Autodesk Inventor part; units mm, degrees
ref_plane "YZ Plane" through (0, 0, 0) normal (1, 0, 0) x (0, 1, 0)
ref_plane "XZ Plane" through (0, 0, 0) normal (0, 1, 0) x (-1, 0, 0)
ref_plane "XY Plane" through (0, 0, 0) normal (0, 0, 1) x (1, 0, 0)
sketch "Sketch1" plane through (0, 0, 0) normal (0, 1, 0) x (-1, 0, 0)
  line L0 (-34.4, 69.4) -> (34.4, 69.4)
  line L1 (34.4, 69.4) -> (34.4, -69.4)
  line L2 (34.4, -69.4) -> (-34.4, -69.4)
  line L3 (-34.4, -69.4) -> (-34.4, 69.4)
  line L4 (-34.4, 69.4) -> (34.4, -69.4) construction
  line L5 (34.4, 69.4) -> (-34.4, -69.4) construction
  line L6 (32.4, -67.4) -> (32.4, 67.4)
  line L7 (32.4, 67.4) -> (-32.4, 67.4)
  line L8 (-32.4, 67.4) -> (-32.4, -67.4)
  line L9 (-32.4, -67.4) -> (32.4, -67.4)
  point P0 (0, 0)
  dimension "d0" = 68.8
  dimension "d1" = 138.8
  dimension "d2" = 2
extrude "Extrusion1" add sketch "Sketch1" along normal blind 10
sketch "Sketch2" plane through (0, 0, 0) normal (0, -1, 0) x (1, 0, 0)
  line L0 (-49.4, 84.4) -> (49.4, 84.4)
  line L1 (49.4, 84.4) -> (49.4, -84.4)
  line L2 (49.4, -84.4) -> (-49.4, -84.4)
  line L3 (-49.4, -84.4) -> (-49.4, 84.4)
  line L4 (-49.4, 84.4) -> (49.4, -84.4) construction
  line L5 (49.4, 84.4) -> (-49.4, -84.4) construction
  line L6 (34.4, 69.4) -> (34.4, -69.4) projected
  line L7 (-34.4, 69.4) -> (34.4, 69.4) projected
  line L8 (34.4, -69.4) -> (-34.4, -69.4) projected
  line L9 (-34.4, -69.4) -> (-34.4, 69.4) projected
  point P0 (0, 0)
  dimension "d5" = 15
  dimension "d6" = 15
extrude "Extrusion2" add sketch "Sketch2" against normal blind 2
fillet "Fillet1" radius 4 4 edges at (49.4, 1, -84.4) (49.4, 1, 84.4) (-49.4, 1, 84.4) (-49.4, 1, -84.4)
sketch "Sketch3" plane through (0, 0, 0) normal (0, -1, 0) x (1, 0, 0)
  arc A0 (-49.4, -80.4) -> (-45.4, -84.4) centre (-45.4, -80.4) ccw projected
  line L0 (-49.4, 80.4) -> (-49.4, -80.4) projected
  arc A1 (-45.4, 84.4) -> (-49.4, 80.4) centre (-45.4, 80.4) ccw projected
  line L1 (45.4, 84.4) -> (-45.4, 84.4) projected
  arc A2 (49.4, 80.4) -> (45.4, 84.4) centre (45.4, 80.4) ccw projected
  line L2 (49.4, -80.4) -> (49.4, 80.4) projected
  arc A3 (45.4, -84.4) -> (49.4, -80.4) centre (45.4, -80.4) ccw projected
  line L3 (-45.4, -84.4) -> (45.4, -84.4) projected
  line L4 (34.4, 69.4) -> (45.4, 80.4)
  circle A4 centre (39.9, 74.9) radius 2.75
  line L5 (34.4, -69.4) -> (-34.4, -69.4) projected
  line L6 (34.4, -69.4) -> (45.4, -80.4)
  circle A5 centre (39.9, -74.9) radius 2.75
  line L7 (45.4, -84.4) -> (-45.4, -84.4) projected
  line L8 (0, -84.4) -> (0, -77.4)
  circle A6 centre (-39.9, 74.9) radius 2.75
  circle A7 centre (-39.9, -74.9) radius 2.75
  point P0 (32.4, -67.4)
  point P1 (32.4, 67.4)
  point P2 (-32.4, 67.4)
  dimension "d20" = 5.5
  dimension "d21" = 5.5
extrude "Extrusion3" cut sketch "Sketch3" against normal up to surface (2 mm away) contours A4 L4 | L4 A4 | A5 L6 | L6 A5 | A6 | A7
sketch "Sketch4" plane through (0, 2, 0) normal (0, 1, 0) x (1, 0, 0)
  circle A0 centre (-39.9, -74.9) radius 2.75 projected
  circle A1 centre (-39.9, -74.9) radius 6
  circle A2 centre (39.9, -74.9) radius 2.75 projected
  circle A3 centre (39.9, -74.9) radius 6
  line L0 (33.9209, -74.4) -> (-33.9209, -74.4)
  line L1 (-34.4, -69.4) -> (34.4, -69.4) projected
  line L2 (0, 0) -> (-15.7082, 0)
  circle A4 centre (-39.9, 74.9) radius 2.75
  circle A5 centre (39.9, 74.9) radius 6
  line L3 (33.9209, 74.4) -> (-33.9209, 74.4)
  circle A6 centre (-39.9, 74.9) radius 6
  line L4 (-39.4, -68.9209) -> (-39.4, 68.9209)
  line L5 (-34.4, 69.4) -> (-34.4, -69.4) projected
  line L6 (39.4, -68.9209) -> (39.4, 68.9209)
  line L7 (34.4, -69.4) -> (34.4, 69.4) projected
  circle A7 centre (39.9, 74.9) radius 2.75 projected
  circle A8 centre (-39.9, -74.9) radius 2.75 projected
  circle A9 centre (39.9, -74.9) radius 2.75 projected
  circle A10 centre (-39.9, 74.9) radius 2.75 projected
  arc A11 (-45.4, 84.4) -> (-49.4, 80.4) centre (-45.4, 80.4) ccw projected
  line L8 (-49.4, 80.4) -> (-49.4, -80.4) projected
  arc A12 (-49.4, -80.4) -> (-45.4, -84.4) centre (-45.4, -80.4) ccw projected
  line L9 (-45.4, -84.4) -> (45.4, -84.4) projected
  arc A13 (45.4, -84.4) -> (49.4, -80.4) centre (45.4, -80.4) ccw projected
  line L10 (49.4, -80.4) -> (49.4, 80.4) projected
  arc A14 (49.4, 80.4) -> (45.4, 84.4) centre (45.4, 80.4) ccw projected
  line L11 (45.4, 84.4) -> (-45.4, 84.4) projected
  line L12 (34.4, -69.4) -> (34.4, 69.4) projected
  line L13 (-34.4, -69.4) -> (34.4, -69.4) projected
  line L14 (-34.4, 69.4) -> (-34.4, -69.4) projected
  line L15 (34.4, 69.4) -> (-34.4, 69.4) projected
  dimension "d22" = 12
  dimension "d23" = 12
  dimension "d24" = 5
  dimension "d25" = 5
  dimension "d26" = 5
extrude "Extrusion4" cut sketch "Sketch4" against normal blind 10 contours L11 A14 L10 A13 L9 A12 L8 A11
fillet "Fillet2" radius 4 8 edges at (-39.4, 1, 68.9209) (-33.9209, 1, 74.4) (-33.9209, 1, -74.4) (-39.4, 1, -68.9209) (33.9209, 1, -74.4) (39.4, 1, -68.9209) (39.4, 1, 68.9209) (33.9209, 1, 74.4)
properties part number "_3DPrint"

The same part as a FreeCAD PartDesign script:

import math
import FreeCAD as App
import Part
import Sketcher
Q = App.Units.Quantity


def edges_at(feature, points):
    """Names of the edges that pass closest to the given points."""
    edges = feature.Shape.Edges
    near = lambda p: min(range(len(edges)), key=lambda i: edges[i].distToShape(Part.Vertex(*p))[0])
    return sorted({f"Edge{near(p) + 1}" for p in points})


def add_polygon(sketch, points):
    """Adds a closed chain of lines whose ends are joined by coincident constraints."""
    first, n = sketch.GeometryCount, len(points)
    for a, b in zip(points, points[1:] + points[:1]):
        sketch.addGeometry(Part.LineSegment(App.Vector(*a, 0), App.Vector(*b, 0)), False)
    for i in range(n):
        sketch.addConstraint(Sketcher.Constraint("Coincident", first + i, 2, first + (i + 1) % n, 1))

doc = App.newDocument("Part")
body = doc.addObject("PartDesign::Body", "Body")

# Sketch on XZ plane
sketch1 = body.newObject("Sketcher::SketchObject", "Sketch")
sketch1.AttachmentSupport = (doc.getObject("XZ_Plane"), [""])
sketch1.MapMode = "FlatFace"
add_polygon(sketch1, [(-34, 69), (34, 69), (34, -69), (-34, -69)])  # lines 0-3
add_polygon(sketch1, [(-32, 67), (-32, -67), (32, -67), (32, 67)])  # lines 4-7
sketch1.addConstraint([
    Sketcher.Constraint("Horizontal", 0),
    Sketcher.Constraint("Vertical", 1),
    Sketcher.Constraint("Horizontal", 2),
    Sketcher.Constraint("Vertical", 3),
    Sketcher.Constraint("Vertical", 4),
    Sketcher.Constraint("Horizontal", 5),
    Sketcher.Constraint("Vertical", 6),
    Sketcher.Constraint("Horizontal", 7),
    Sketcher.Constraint("Symmetric", 0, 2, 2, 2, -1, 1),
    Sketcher.Constraint("Symmetric", 4, 2, 6, 2, -1, 1),
    Sketcher.Constraint("DistanceX", 0, 1, 0, 2, Q("68.8 mm")),
    Sketcher.Constraint("DistanceY", 1, 2, 1, 1, Q("138.8 mm")),
    Sketcher.Constraint("DistanceX", 2, 2, 4, 2, Q("2 mm")),
    Sketcher.Constraint("DistanceY", 2, 2, 4, 2, Q("2 mm")),
])
pad1 = body.newObject("PartDesign::Pad", "Pad")
pad1.Profile = sketch1
pad1.Length = 10
pad1.Reversed = True

# Sketch on XZ plane
sketch2 = body.newObject("Sketcher::SketchObject", "Sketch001")
sketch2.AttachmentSupport = (doc.getObject("XZ_Plane"), [""])
sketch2.MapMode = "FlatFace"
add_polygon(sketch2, [(49, 84), (-49, 84), (-49, -84), (49, -84)])  # lines 0-3
add_polygon(sketch2, [(-34, 69), (34, 69), (34, -69), (-34, -69)])  # lines 4-7
sketch2.addConstraint([
    Sketcher.Constraint("Horizontal", 0),
    Sketcher.Constraint("Vertical", 1),
    Sketcher.Constraint("Horizontal", 2),
    Sketcher.Constraint("Vertical", 3),
    Sketcher.Constraint("Horizontal", 4),
    Sketcher.Constraint("Vertical", 5),
    Sketcher.Constraint("Horizontal", 6),
    Sketcher.Constraint("Vertical", 7),
    Sketcher.Constraint("Symmetric", 0, 2, 2, 2, -1, 1),
    Sketcher.Constraint("Symmetric", 4, 2, 6, 2, -1, 1),
    Sketcher.Constraint("DistanceX", 4, 2, 3, 2, Q("15 mm")),
    Sketcher.Constraint("DistanceY", 4, 2, 3, 2, Q("15 mm")),
    Sketcher.Constraint("DistanceX", 0, 2, 0, 1, Q("98.8 mm")),
    Sketcher.Constraint("DistanceY", 1, 2, 1, 1, Q("168.8 mm")),
])
pad2 = body.newObject("PartDesign::Pad", "Pad001")
pad2.Profile = sketch2
pad2.Length = 2
pad2.Reversed = True
doc.recompute()

fillet = body.newObject("PartDesign::Fillet", "Fillet")
fillet.Base = (pad2, edges_at(pad2, [
    (49.4, 1, -84.4),
    (49.4, 1, 84.4),
    (-49.4, 1, 84.4),
    (-49.4, 1, -84.4),
]))
fillet.Radius = 4

# Sketch on XZ plane
sketch3 = body.newObject("Sketcher::SketchObject", "Sketch002")
sketch3.AttachmentSupport = (doc.getObject("XZ_Plane"), [""])
sketch3.MapMode = "FlatFace"
sketch3.addGeometry([
    Part.Circle(App.Vector(39.9, 74.9, 0), App.Vector(0, 0, 1), 2.8),
    Part.Circle(App.Vector(39.9, -74.9, 0), App.Vector(0, 0, 1), 2.8),
    Part.Circle(App.Vector(-39.9, 74.9, 0), App.Vector(0, 0, 1), 2.8),
    Part.Circle(App.Vector(-39.9, -74.9, 0), App.Vector(0, 0, 1), 2.8),
], False)
sketch3.addConstraint([
    Sketcher.Constraint("Equal", 0, 1),
    Sketcher.Constraint("Equal", 1, 2),
    Sketcher.Constraint("Equal", 2, 3),
    Sketcher.Constraint("Symmetric", 1, 3, 2, 3, -1, 1),
    Sketcher.Constraint("Symmetric", 0, 3, 3, 3, -1, 1),
    Sketcher.Constraint("Symmetric", 0, 3, 2, 3, -2),
    Sketcher.Constraint("Diameter", 0, Q("5.5 mm")),
    Sketcher.Constraint("DistanceX", -1, 1, 0, 3, Q("39.9 mm")),
    Sketcher.Constraint("DistanceY", -1, 1, 0, 3, Q("74.9 mm")),
])
pocket1 = body.newObject("PartDesign::Pocket", "Pocket")
pocket1.Profile = sketch3
pocket1.Length = 2

# Sketch on XZ plane
sketch4 = body.newObject("Sketcher::SketchObject", "Sketch003")
sketch4.AttachmentSupport = (doc.getObject("XZ_Plane"), [""])
sketch4.MapMode = "FlatFace"
sketch4.AttachmentOffset = App.Placement(App.Vector(0, 0, -2), App.Rotation())
sketch4.addGeometry([
    Part.LineSegment(App.Vector(45.4, -84.4, 0), App.Vector(-45.4, -84.4, 0)),  # 0
    Part.ArcOfCircle(Part.Circle(App.Vector(-45.4, -80.4, 0), App.Vector(0, 0, 1), 4), math.radians(180), math.radians(270)),  # 1
    Part.LineSegment(App.Vector(-49.4, -80.4, 0), App.Vector(-49.4, 80.4, 0)),  # 2
    Part.ArcOfCircle(Part.Circle(App.Vector(-45.4, 80.4, 0), App.Vector(0, 0, 1), 4), math.radians(90), math.radians(180)),  # 3
    Part.LineSegment(App.Vector(-45.4, 84.4, 0), App.Vector(45.4, 84.4, 0)),  # 4
    Part.ArcOfCircle(Part.Circle(App.Vector(45.4, 80.4, 0), App.Vector(0, 0, 1), 4), math.radians(0), math.radians(90)),  # 5
    Part.LineSegment(App.Vector(49.4, 80.4, 0), App.Vector(49.4, -80.4, 0)),  # 6
    Part.ArcOfCircle(Part.Circle(App.Vector(45.4, -80.4, 0), App.Vector(0, 0, 1), 4), math.radians(-90), math.radians(0)),  # 7
    Part.ArcOfCircle(Part.Circle(App.Vector(-39.9, 74.9, 0), App.Vector(0, 0, 1), 6), math.radians(-5), math.radians(275)),  # 8
    Part.LineSegment(App.Vector(-39.4, 68.9, 0), App.Vector(-39.4, -68.9, 0)),  # 9
    Part.ArcOfCircle(Part.Circle(App.Vector(-39.9, -74.9, 0), App.Vector(0, 0, 1), 6), math.radians(85), math.radians(365)),  # 10
    Part.LineSegment(App.Vector(-33.9, -74.4, 0), App.Vector(33.9, -74.4, 0)),  # 11
    Part.ArcOfCircle(Part.Circle(App.Vector(39.9, -74.9, 0), App.Vector(0, 0, 1), 6), math.radians(175), math.radians(455)),  # 12
    Part.LineSegment(App.Vector(39.4, -68.9, 0), App.Vector(39.4, 68.9, 0)),  # 13
    Part.ArcOfCircle(Part.Circle(App.Vector(39.9, 74.9, 0), App.Vector(0, 0, 1), 6), math.radians(-95), math.radians(185)),  # 14
    Part.LineSegment(App.Vector(33.9, 74.4, 0), App.Vector(-33.9, 74.4, 0)),  # 15
], False)
sketch4.addConstraint([
    Sketcher.Constraint("Tangent", 0, 2, 1, 2),
    Sketcher.Constraint("Tangent", 1, 1, 2, 1),
    Sketcher.Constraint("Tangent", 2, 2, 3, 2),
    Sketcher.Constraint("Tangent", 3, 1, 4, 1),
    Sketcher.Constraint("Tangent", 4, 2, 5, 2),
    Sketcher.Constraint("Tangent", 5, 1, 6, 1),
    Sketcher.Constraint("Tangent", 6, 2, 7, 2),
    Sketcher.Constraint("Tangent", 7, 1, 0, 1),
    Sketcher.Constraint("Coincident", 8, 2, 9, 1),
    Sketcher.Constraint("Coincident", 9, 2, 10, 1),
    Sketcher.Constraint("Coincident", 10, 2, 11, 1),
    Sketcher.Constraint("Coincident", 11, 2, 12, 1),
    Sketcher.Constraint("Coincident", 12, 2, 13, 1),
    Sketcher.Constraint("Coincident", 13, 2, 14, 1),
    Sketcher.Constraint("Coincident", 14, 2, 15, 1),
    Sketcher.Constraint("Coincident", 15, 2, 8, 1),
    Sketcher.Constraint("Horizontal", 0),
    Sketcher.Constraint("Vertical", 2),
    Sketcher.Constraint("Horizontal", 4),
    Sketcher.Constraint("Vertical", 6),
    Sketcher.Constraint("Vertical", 9),
    Sketcher.Constraint("Horizontal", 11),
    Sketcher.Constraint("Vertical", 13),
    Sketcher.Constraint("Horizontal", 15),
    Sketcher.Constraint("Equal", 1, 3),
    Sketcher.Constraint("Equal", 3, 5),
    Sketcher.Constraint("Equal", 5, 7),
    Sketcher.Constraint("Equal", 8, 10),
    Sketcher.Constraint("Equal", 10, 12),
    Sketcher.Constraint("Equal", 12, 14),
    Sketcher.Constraint("Symmetric", 1, 3, 5, 3, -1, 1),
    Sketcher.Constraint("Symmetric", 8, 3, 12, 3, -1, 1),
    Sketcher.Constraint("Symmetric", 10, 3, 14, 3, -1, 1),
    Sketcher.Constraint("Symmetric", 10, 3, 12, 3, -2),
    Sketcher.Constraint("Horizontal", 9, 2, 12, 2),
    Sketcher.Constraint("Vertical", 11, 2, 14, 2),
    Sketcher.Constraint("Radius", 8, Q("6 mm")),
    Sketcher.Constraint("Radius", 1, Q("4 mm")),
    Sketcher.Constraint("DistanceX", 0, 2, 0, 1, Q("90.8 mm")),
    Sketcher.Constraint("DistanceY", 2, 1, 2, 2, Q("160.8 mm")),
    Sketcher.Constraint("DistanceX", 3, 3, 8, 2, Q("6 mm")),
    Sketcher.Constraint("DistanceY", 1, 3, 10, 2, Q("6 mm")),
    Sketcher.Constraint("DistanceX", 8, 3, -1, 1, Q("39.9 mm")),
    Sketcher.Constraint("DistanceY", -1, 1, 8, 3, Q("74.9 mm")),
])
pocket2 = body.newObject("PartDesign::Pocket", "Pocket001")
pocket2.Profile = sketch4
pocket2.Length = 10
pocket2.Reversed = True
doc.recompute()

fillet2 = body.newObject("PartDesign::Fillet", "Fillet001")
fillet2.Base = (pocket2, edges_at(pocket2, [
    (-39.4, 1, 68.921),
    (-33.921, 1, 74.4),
    (-33.921, 1, -74.4),
    (-39.4, 1, -68.921),
    (33.921, 1, -74.4),
    (39.4, 1, -68.921),
    (39.4, 1, 68.921),
    (33.921, 1, 74.4),
]))
fillet2.Radius = 4

doc.recompute()
